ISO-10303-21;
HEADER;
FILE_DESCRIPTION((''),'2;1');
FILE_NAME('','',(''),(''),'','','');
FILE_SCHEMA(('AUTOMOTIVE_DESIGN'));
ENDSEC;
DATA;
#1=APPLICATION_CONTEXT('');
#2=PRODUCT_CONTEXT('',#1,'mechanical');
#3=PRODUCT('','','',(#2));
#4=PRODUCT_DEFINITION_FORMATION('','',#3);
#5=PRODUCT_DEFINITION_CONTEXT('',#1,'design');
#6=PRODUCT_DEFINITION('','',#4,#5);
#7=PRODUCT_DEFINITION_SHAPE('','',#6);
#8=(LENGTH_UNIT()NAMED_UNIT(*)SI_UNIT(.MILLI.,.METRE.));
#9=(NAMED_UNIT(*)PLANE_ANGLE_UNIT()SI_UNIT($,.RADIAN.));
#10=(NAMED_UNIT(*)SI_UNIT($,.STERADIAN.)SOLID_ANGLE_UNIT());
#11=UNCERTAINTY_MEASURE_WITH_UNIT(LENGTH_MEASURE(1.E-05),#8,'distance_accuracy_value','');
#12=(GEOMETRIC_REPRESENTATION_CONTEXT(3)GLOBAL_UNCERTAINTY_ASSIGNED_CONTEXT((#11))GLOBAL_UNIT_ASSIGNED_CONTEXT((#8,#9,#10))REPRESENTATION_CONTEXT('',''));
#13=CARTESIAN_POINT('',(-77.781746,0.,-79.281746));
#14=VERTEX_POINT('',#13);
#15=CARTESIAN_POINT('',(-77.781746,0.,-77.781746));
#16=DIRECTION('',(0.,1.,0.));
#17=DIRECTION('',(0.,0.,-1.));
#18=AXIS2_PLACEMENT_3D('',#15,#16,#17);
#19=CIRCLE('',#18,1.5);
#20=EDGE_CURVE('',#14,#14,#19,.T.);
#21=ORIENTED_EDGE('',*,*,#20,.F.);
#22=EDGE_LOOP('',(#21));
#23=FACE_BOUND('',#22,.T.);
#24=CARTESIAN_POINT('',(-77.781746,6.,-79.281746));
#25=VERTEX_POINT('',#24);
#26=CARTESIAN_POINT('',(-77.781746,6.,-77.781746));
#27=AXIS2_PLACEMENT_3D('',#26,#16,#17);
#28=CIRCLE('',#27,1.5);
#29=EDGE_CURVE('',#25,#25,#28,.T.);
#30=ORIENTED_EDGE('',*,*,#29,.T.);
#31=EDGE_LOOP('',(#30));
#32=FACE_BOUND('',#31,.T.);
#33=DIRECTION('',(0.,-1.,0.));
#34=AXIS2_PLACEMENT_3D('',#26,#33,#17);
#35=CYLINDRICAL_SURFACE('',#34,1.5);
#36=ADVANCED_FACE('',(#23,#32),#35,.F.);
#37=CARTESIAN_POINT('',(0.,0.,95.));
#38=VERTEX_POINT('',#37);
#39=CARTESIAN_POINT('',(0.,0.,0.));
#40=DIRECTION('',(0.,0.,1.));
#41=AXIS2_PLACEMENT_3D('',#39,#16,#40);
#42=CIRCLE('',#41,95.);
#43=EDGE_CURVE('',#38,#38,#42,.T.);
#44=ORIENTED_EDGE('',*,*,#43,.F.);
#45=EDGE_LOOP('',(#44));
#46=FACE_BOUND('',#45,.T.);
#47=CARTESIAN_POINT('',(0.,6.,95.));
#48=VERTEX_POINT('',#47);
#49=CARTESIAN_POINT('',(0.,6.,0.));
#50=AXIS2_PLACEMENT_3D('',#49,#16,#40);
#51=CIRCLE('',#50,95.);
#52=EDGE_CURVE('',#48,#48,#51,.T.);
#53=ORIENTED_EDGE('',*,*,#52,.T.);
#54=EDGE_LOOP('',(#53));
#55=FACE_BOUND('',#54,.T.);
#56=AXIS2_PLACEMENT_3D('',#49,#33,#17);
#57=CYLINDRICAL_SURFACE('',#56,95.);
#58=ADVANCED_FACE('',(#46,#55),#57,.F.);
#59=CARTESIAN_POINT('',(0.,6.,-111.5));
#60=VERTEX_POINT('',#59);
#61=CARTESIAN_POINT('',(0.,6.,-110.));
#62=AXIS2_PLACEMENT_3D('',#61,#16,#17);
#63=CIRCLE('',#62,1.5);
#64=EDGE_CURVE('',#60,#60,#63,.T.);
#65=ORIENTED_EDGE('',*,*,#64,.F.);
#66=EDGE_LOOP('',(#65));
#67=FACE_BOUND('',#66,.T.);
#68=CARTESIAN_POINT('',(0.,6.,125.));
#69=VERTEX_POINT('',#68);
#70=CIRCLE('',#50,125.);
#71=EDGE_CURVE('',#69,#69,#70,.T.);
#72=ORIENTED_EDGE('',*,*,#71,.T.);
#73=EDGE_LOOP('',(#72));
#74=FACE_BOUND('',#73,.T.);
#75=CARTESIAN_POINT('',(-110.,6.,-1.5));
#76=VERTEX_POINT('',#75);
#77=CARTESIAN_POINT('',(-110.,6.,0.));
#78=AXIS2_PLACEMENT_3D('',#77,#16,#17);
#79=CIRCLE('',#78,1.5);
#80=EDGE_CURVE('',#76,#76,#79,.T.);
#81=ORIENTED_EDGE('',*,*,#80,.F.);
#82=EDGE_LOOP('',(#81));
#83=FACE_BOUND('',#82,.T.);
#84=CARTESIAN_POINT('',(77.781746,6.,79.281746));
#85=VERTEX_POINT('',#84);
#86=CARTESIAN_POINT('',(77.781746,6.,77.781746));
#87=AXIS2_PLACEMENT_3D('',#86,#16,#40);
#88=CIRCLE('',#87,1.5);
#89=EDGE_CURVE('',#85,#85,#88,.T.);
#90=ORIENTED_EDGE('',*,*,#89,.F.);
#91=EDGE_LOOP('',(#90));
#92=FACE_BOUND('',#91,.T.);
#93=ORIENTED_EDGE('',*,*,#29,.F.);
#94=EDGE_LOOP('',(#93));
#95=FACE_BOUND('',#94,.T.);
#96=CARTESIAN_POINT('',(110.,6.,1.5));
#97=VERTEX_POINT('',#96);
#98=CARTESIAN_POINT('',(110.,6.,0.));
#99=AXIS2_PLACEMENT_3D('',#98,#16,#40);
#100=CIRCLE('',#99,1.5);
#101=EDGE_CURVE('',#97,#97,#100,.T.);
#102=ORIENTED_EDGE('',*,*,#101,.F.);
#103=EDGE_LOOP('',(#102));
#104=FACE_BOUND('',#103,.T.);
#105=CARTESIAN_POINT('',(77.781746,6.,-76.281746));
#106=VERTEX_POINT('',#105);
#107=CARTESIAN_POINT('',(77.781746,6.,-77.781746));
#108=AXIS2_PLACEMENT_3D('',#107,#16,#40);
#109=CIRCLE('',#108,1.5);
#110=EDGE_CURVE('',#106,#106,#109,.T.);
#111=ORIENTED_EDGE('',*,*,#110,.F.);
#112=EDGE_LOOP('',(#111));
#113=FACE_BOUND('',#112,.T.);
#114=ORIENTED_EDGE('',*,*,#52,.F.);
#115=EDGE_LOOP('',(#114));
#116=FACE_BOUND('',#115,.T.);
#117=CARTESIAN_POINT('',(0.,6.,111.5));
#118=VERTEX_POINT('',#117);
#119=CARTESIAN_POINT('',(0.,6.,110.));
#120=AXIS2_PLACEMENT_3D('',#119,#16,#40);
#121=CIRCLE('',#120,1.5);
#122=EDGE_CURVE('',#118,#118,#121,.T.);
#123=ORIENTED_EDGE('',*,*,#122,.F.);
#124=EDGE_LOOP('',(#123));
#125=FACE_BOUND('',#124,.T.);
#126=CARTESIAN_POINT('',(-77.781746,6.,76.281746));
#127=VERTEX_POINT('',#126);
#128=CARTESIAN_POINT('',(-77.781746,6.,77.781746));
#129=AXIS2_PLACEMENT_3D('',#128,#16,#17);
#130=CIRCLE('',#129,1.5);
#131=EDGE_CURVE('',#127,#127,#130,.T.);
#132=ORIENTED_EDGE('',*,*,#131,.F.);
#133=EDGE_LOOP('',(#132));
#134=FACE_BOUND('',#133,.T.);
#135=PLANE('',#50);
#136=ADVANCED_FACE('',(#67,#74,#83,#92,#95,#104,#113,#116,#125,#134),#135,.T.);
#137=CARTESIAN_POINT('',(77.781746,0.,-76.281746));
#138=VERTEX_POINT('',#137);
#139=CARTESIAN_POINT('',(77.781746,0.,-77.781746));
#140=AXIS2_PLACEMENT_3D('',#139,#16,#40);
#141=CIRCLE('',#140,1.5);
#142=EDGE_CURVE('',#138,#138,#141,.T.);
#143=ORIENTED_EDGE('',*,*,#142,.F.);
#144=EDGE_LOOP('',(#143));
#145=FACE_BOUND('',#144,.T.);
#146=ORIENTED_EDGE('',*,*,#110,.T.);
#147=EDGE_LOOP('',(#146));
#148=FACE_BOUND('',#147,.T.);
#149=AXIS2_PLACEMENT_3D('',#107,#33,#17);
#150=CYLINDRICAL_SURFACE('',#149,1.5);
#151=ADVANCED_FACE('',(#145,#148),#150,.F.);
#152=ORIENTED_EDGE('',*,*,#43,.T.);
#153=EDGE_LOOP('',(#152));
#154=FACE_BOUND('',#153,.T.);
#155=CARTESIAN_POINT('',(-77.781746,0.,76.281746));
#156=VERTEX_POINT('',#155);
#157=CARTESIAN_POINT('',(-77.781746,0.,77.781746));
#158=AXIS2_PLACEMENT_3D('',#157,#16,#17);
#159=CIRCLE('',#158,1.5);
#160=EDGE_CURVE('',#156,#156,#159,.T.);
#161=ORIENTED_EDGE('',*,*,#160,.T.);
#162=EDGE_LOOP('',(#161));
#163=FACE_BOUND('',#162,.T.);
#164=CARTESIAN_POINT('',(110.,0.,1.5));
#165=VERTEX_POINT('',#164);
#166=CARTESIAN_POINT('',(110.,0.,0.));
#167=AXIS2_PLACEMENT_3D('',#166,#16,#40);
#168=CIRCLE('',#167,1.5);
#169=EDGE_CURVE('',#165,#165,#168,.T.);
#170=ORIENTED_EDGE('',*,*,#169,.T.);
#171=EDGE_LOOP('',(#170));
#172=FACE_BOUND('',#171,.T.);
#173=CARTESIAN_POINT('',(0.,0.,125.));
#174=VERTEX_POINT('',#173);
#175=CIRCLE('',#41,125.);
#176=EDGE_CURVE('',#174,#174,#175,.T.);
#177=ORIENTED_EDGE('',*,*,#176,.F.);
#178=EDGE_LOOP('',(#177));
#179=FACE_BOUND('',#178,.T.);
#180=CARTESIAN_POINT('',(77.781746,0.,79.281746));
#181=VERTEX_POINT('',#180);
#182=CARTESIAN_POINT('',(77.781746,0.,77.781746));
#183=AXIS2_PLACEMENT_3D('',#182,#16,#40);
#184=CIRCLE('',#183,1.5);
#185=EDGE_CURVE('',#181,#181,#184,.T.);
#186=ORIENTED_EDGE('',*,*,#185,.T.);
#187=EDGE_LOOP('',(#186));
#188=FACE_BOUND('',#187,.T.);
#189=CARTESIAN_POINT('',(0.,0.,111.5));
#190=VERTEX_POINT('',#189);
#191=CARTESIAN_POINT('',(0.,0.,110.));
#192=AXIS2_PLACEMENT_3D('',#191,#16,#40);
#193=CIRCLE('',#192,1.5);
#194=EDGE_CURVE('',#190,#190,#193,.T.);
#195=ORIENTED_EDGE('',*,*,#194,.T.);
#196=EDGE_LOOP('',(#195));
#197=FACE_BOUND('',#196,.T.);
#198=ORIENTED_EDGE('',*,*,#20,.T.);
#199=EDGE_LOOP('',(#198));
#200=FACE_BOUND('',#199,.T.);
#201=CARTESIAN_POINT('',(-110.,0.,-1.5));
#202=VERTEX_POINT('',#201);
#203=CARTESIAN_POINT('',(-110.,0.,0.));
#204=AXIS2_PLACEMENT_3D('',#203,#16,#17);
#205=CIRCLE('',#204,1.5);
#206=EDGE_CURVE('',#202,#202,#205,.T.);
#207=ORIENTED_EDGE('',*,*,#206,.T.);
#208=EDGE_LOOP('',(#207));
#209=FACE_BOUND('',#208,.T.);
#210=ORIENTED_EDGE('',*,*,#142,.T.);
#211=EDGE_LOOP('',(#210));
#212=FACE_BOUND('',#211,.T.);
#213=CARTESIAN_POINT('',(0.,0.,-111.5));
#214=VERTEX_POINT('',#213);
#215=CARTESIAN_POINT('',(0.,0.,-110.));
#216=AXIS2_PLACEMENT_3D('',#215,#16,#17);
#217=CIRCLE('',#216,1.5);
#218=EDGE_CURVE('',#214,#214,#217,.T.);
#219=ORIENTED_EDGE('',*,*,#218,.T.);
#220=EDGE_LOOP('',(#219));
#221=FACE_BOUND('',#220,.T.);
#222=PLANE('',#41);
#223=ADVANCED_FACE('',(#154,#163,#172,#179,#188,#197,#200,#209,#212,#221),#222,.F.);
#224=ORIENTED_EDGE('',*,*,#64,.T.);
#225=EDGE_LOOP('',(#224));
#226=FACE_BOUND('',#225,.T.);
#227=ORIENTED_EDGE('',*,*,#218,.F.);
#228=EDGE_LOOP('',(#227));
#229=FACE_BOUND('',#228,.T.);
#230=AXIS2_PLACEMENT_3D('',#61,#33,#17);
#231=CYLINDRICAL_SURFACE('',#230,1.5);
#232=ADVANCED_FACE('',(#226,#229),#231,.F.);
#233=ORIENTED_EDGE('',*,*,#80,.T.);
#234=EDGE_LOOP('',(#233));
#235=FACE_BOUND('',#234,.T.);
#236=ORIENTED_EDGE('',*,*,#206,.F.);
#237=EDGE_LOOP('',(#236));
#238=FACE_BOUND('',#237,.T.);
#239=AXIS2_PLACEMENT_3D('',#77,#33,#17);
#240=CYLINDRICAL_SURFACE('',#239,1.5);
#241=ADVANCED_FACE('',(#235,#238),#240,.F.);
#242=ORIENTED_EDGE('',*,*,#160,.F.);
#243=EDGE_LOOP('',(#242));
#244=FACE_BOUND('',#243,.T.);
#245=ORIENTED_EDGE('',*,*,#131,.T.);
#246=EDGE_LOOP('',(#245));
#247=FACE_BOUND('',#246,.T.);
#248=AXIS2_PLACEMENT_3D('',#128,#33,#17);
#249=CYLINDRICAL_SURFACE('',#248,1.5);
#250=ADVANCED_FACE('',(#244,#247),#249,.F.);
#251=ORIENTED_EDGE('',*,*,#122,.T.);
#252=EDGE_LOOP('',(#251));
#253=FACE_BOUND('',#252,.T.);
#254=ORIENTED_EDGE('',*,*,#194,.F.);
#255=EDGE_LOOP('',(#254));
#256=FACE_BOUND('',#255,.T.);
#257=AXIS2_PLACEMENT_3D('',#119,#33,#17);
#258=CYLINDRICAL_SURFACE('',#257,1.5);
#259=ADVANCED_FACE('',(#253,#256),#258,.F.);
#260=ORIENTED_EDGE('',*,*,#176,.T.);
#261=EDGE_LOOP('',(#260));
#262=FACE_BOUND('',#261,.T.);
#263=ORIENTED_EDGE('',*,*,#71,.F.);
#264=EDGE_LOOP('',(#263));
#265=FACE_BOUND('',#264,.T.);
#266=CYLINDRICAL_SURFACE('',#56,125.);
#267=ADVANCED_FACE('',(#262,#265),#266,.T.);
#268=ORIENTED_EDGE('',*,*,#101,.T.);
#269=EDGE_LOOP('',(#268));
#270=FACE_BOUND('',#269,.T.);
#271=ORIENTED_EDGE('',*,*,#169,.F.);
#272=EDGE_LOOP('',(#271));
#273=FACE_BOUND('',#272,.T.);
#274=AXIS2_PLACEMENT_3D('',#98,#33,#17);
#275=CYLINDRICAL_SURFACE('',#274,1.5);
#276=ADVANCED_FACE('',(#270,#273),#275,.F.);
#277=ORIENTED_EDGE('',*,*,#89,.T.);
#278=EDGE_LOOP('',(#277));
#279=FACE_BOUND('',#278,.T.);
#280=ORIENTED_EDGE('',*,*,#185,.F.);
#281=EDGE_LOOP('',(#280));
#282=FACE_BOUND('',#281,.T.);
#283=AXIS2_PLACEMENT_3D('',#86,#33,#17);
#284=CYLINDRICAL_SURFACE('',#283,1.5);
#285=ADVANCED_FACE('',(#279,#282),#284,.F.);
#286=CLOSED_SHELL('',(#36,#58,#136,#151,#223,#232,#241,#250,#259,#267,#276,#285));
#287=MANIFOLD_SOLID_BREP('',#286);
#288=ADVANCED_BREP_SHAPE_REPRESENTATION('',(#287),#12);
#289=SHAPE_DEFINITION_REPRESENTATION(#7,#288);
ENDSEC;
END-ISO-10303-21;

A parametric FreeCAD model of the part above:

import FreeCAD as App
import Part
import Sketcher

doc = App.newDocument("Part")
body = doc.addObject("PartDesign::Body", "Body")

sketch1 = body.newObject("Sketcher::SketchObject", "Sketch")
sketch1.AttachmentSupport = (doc.getObject("XZ_Plane"), [""])
sketch1.MapMode = "FlatFace"
sketch1.addGeometry(Part.Circle(App.Vector(0, 0, 0), App.Vector(0, 0, 1), 125), False)
sketch1.addGeometry(Part.Circle(App.Vector(-77.781746, -77.781746, 0), App.Vector(0, 0, 1), 1.5), False)
sketch1.addGeometry(Part.Circle(App.Vector(0, -110, 0), App.Vector(0, 0, 1), 1.5), False)
sketch1.addGeometry(Part.Circle(App.Vector(-110, 0, 0), App.Vector(0, 0, 1), 1.5), False)
sketch1.addGeometry(Part.Circle(App.Vector(-77.781746, 77.781746, 0), App.Vector(0, 0, 1), 1.5), False)
sketch1.addGeometry(Part.Circle(App.Vector(77.781746, -77.781746, 0), App.Vector(0, 0, 1), 1.5), False)
sketch1.addGeometry(Part.Circle(App.Vector(110, 0, 0), App.Vector(0, 0, 1), 1.5), False)
sketch1.addGeometry(Part.Circle(App.Vector(0, 0, 0), App.Vector(0, 0, 1), 95), False)
sketch1.addGeometry(Part.Circle(App.Vector(0, 110, 0), App.Vector(0, 0, 1), 1.5), False)
sketch1.addGeometry(Part.Circle(App.Vector(77.781746, 77.781746, 0), App.Vector(0, 0, 1), 1.5), False)
sketch1.addConstraint(Sketcher.Constraint("Coincident", 0, 3, -1, 1))
sketch1.addConstraint(Sketcher.Constraint("Coincident", 7, 3, -1, 1))
sketch1.addConstraint(Sketcher.Constraint("Equal", 1, 2))
sketch1.addConstraint(Sketcher.Constraint("Equal", 2, 3))
sketch1.addConstraint(Sketcher.Constraint("Equal", 3, 4))
sketch1.addConstraint(Sketcher.Constraint("Equal", 4, 5))
sketch1.addConstraint(Sketcher.Constraint("Equal", 5, 6))
sketch1.addConstraint(Sketcher.Constraint("Equal", 6, 8))
sketch1.addConstraint(Sketcher.Constraint("Equal", 8, 9))
sketch1.addConstraint(Sketcher.Constraint("Symmetric", 4, 3, 5, 3, -1, 1))
sketch1.addConstraint(Sketcher.Constraint("Symmetric", 3, 3, 6, 3, -1, 1))
sketch1.addConstraint(Sketcher.Constraint("Symmetric", 2, 3, 8, 3, -1, 1))
sketch1.addConstraint(Sketcher.Constraint("Symmetric", 1, 3, 9, 3, -1, 1))
sketch1.addConstraint(Sketcher.Constraint("Symmetric", 1, 3, 5, 3, -2))
sketch1.addConstraint(Sketcher.Constraint("PointOnObject", 2, 3, -2))
sketch1.addConstraint(Sketcher.Constraint("PointOnObject", 3, 3, -1))
sketch1.addConstraint(Sketcher.Constraint("Diameter", 0, 250.0))
sketch1.addConstraint(Sketcher.Constraint("Diameter", 1, 3.0))
sketch1.addConstraint(Sketcher.Constraint("Diameter", 7, 190.0))
sketch1.addConstraint(Sketcher.Constraint("DistanceY", 2, 3, -1, 1, 110.0))
sketch1.addConstraint(Sketcher.Constraint("DistanceX", 3, 3, -1, 1, 110.0))
sketch1.addConstraint(Sketcher.Constraint("DistanceY", 1, 3, 4, 3, 155.563492))
sketch1.addConstraint(Sketcher.Constraint("DistanceX", 1, 3, 5, 3, 155.563492))
pad1 = body.newObject("PartDesign::Pad", "Pad")
pad1.Profile = sketch1
pad1.Length = 6
pad1.Reversed = True

doc.recompute()
